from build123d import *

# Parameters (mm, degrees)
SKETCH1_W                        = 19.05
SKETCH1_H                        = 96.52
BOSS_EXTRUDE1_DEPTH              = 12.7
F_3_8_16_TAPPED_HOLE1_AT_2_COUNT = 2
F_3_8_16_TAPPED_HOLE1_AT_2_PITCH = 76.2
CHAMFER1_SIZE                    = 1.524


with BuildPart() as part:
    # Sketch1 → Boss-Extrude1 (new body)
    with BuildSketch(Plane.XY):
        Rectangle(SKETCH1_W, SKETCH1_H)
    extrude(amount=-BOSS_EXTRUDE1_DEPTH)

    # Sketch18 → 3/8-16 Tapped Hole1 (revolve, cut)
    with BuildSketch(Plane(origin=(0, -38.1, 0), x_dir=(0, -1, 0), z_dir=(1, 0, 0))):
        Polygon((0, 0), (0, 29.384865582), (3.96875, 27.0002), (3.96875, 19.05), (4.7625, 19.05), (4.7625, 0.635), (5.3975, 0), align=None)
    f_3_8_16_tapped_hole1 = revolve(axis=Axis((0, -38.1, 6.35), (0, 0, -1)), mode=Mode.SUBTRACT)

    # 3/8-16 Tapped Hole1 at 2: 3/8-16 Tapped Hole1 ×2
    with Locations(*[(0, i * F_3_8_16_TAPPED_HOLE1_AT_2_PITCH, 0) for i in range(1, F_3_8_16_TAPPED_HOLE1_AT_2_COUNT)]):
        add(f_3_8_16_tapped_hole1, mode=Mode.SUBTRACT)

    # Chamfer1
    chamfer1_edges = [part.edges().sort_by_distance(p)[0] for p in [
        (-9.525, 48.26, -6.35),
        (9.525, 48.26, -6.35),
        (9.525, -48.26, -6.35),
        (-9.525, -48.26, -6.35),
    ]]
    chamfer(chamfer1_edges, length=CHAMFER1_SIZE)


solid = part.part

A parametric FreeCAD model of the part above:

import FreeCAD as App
import Part
import Sketcher
Q = App.Units.Quantity


def edges_at(feature, points):
    """Names of the edges that pass closest to the given points."""
    edges = feature.Shape.Edges
    near = lambda p: min(range(len(edges)), key=lambda i: edges[i].distToShape(Part.Vertex(*p))[0])
    return sorted({f"Edge{near(p) + 1}" for p in points})

doc = App.newDocument("Part")
body = doc.addObject("PartDesign::Body", "Body")

# Sketch on XY plane
sketch1 = body.newObject("Sketcher::SketchObject", "Sketch")
sketch1.AttachmentSupport = (doc.getObject("XY_Plane"), [""])
sketch1.MapMode = "FlatFace"
sketch1.addGeometry(Part.LineSegment(App.Vector(-10, 48, 0), App.Vector(-10, -48, 0)), False)
sketch1.addGeometry(Part.LineSegment(App.Vector(-10, -48, 0), App.Vector(10, -48, 0)), False)
sketch1.addGeometry(Part.LineSegment(App.Vector(10, -48, 0), App.Vector(10, 48, 0)), False)
sketch1.addGeometry(Part.LineSegment(App.Vector(10, 48, 0), App.Vector(-10, 48, 0)), False)
sketch1.addConstraint(Sketcher.Constraint("Coincident", 0, 2, 1, 1))
sketch1.addConstraint(Sketcher.Constraint("Coincident", 1, 2, 2, 1))
sketch1.addConstraint(Sketcher.Constraint("Coincident", 2, 2, 3, 1))
sketch1.addConstraint(Sketcher.Constraint("Coincident", 3, 2, 0, 1))
sketch1.addConstraint(Sketcher.Constraint("Vertical", 0))
sketch1.addConstraint(Sketcher.Constraint("Horizontal", 1))
sketch1.addConstraint(Sketcher.Constraint("Vertical", 2))
sketch1.addConstraint(Sketcher.Constraint("Horizontal", 3))
sketch1.addConstraint(Sketcher.Constraint("Symmetric", 0, 2, 2, 2, -1, 1))
sketch1.addConstraint(Sketcher.Constraint("DistanceY", 0, 2, 0, 1, Q("3.8 in")))
sketch1.addConstraint(Sketcher.Constraint("DistanceX", 1, 1, 1, 2, Q("0.75 in")))
pad1 = body.newObject("PartDesign::Pad", "Pad")
pad1.Profile = sketch1
pad1.Length = Q("0.5 in")
pad1.Reversed = True

# Sketch on YZ plane
sketch2 = body.newObject("Sketcher::SketchObject", "Sketch001")
sketch2.AttachmentSupport = (doc.getObject("YZ_Plane"), [""])
sketch2.MapMode = "FlatFace"
sketch2.addGeometry(Part.LineSegment(App.Vector(-38.1, -29.4, 0), App.Vector(-38.1, 0, 0)), False)
sketch2.addGeometry(Part.LineSegment(App.Vector(-38.1, 0, 0), App.Vector(-43.5, 0, 0)), False)
sketch2.addGeometry(Part.LineSegment(App.Vector(-43.5, 0, 0), App.Vector(-42.9, -0.6, 0)), False)
sketch2.addGeometry(Part.LineSegment(App.Vector(-42.9, -0.6, 0), App.Vector(-42.9, -19.1, 0)), False)
sketch2.addGeometry(Part.LineSegment(App.Vector(-42.9, -19.1, 0), App.Vector(-42.1, -19.1, 0)), False)
sketch2.addGeometry(Part.LineSegment(App.Vector(-42.1, -19.1, 0), App.Vector(-42.1, -27, 0)), False)
sketch2.addGeometry(Part.LineSegment(App.Vector(-42.1, -27, 0), App.Vector(-38.1, -29.4, 0)), False)
sketch2.addGeometry(Part.LineSegment(App.Vector(-38.1, 0, 0), App.Vector(-38.1, -29.4, 0)), True)  # axis
sketch2.addConstraint(Sketcher.Constraint("Coincident", 0, 2, 1, 1))
sketch2.addConstraint(Sketcher.Constraint("Coincident", 1, 2, 2, 1))
sketch2.addConstraint(Sketcher.Constraint("Coincident", 2, 2, 3, 1))
sketch2.addConstraint(Sketcher.Constraint("Coincident", 3, 2, 4, 1))
sketch2.addConstraint(Sketcher.Constraint("Coincident", 4, 2, 5, 1))
sketch2.addConstraint(Sketcher.Constraint("Coincident", 5, 2, 6, 1))
sketch2.addConstraint(Sketcher.Constraint("Coincident", 6, 2, 0, 1))
sketch2.addConstraint(Sketcher.Constraint("Vertical", 0))
sketch2.addConstraint(Sketcher.Constraint("Horizontal", 1))
sketch2.addConstraint(Sketcher.Constraint("Vertical", 3))
sketch2.addConstraint(Sketcher.Constraint("Horizontal", 4))
sketch2.addConstraint(Sketcher.Constraint("Vertical", 5))
sketch2.addConstraint(Sketcher.Constraint("Vertical", 7))
sketch2.addConstraint(Sketcher.Constraint("Coincident", 7, 1, 0, 2))
sketch2.addConstraint(Sketcher.Constraint("PointOnObject", 0, 2, -1))
sketch2.addConstraint(Sketcher.Constraint("Equal", 0, 7))
sketch2.addConstraint(Sketcher.Constraint("Angle", 2, Q("-45 deg")))
sketch2.addConstraint(Sketcher.Constraint("Angle", 6, Q("-31 deg")))
sketch2.addConstraint(Sketcher.Constraint("DistanceX", 0, 2, -1, 1, Q("1.5 in")))
sketch2.addConstraint(Sketcher.Constraint("DistanceX", 4, 1, 4, 2, Q("0.03125 in")))
sketch2.addConstraint(Sketcher.Constraint("DistanceY", 3, 2, 3, 1, Q("0.725 in")))
sketch2.addConstraint(Sketcher.Constraint("DistanceY", 5, 2, 5, 1, Q("0.313 in")))
sketch2.addConstraint(Sketcher.Constraint("DistanceY", 3, 2, -1, 1, Q("0.75 in")))
sketch2.addConstraint(Sketcher.Constraint("DistanceX", 1, 2, 1, 1, Q("0.2125 in")))
groove = body.newObject("PartDesign::Groove", "Groove")
groove.Profile = sketch2
groove.ReferenceAxis = (sketch2, ["Axis0"])
groove.Angle = 360
doc.recompute()

linearpattern = body.newObject("PartDesign::LinearPattern", "LinearPattern")
linearpattern.Originals = [groove]
linearpattern.Direction = (doc.getObject("Y_Axis"), [""])
linearpattern.Mode = "offset"
linearpattern.Offset = Q("3 in")
linearpattern.Occurrences = 2
body.Tip = linearpattern
doc.recompute()

chamfer = body.newObject("PartDesign::Chamfer", "Chamfer")
chamfer.Base = (linearpattern, edges_at(linearpattern, [
    (-9.525, 48.26, -6.35),
    (9.525, 48.26, -6.35),
    (9.525, -48.26, -6.35),
    (-9.525, -48.26, -6.35),
]))
chamfer.Size = Q("0.06 in")

doc.recompute()
